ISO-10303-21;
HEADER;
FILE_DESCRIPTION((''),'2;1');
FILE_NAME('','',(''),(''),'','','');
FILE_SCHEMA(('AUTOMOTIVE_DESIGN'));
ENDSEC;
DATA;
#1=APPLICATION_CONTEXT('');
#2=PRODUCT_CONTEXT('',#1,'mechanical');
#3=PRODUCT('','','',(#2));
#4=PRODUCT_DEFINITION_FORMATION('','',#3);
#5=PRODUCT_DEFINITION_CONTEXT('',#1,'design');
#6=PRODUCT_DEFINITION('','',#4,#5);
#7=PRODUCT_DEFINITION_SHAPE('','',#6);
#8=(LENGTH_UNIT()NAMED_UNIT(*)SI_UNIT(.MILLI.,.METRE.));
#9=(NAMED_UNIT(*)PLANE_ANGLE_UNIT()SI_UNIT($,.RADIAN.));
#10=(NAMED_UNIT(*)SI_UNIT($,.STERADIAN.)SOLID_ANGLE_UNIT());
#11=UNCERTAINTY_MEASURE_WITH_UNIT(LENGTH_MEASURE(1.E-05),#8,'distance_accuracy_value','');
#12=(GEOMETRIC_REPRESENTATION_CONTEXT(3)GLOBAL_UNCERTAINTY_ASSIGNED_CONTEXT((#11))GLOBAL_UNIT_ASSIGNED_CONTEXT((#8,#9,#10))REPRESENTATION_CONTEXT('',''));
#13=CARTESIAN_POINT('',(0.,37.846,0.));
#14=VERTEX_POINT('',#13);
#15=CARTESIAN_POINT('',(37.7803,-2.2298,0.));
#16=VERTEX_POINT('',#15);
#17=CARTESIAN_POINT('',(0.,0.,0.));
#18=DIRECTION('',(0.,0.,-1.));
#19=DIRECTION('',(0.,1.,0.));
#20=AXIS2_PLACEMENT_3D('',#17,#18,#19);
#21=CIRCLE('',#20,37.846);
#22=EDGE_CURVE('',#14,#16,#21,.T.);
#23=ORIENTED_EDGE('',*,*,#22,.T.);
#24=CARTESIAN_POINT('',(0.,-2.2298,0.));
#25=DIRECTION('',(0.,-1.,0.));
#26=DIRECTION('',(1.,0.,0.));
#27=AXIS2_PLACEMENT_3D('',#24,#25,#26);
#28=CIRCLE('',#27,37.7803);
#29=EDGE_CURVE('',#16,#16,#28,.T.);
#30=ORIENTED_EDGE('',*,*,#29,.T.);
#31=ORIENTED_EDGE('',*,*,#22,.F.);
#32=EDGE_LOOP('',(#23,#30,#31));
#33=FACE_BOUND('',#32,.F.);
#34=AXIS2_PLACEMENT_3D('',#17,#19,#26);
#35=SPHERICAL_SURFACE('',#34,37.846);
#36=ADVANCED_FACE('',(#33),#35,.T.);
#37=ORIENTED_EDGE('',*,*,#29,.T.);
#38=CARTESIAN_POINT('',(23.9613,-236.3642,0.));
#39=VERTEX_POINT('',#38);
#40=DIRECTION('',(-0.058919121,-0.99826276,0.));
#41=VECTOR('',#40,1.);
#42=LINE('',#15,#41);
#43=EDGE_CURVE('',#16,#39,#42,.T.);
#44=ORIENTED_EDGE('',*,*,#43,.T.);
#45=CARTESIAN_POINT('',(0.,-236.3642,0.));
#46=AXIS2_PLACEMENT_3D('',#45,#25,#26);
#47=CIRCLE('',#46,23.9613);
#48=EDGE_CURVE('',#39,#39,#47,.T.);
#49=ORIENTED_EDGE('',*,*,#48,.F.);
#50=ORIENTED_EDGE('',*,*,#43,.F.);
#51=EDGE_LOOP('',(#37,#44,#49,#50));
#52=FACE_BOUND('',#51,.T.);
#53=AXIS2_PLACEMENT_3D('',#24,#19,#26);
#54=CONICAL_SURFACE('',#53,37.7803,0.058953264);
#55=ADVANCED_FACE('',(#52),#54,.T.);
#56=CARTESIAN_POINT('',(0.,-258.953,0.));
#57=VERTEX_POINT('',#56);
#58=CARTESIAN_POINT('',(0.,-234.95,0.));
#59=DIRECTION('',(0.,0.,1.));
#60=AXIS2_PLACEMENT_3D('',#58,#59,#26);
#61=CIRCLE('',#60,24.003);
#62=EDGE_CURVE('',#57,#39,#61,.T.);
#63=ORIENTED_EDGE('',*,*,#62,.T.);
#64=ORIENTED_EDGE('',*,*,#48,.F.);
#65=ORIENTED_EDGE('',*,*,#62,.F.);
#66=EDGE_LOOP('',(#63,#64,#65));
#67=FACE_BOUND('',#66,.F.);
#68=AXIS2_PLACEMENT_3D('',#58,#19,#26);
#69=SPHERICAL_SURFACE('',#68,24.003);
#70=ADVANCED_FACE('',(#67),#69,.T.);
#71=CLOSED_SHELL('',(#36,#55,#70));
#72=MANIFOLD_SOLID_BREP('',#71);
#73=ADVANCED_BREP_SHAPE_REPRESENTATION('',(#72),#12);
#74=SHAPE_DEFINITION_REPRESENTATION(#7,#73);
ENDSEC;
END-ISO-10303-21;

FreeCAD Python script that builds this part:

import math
import FreeCAD as App
import Part
import Sketcher
Q = App.Units.Quantity

doc = App.newDocument("Part")
body = doc.addObject("PartDesign::Body", "Body")

# Sketch on XY plane
sketch1 = body.newObject("Sketcher::SketchObject", "Sketch")
sketch1.AttachmentSupport = (doc.getObject("XY_Plane"), [""])
sketch1.MapMode = "FlatFace"
sketch1.addGeometry(Part.ArcOfCircle(Part.Circle(App.Vector(0, 0, 0), App.Vector(0, 0, 1), 37.846), math.radians(-3.377689), math.radians(90)), False)
sketch1.addGeometry(Part.LineSegment(App.Vector(0, 37.846, 0), App.Vector(0, -258.953, 0)), False)
sketch1.addGeometry(Part.ArcOfCircle(Part.Circle(App.Vector(0, -234.95, 0), App.Vector(0, 0, 1), 24.003), math.radians(-90), math.radians(-3.377688)), False)
sketch1.addGeometry(Part.LineSegment(App.Vector(23.9613, -236.3642, 0), App.Vector(37.7803, -2.2298, 0)), False)
sketch1.addConstraint(Sketcher.Constraint("Coincident", 0, 2, 1, 1))
sketch1.addConstraint(Sketcher.Constraint("Coincident", 1, 2, 2, 1))
sketch1.addConstraint(Sketcher.Constraint("Tangent", 2, 2, 3, 1))
sketch1.addConstraint(Sketcher.Constraint("Tangent", 3, 2, 0, 1))
sketch1.addConstraint(Sketcher.Constraint("Vertical", 1))
sketch1.addConstraint(Sketcher.Constraint("Coincident", 0, 3, -1, 1))
sketch1.addConstraint(Sketcher.Constraint("PointOnObject", 2, 3, -2))
sketch1.addConstraint(Sketcher.Constraint("PointOnObject", 0, 2, -2))
sketch1.addConstraint(Sketcher.Constraint("Radius", 0, Q("1.49 in")))
sketch1.addConstraint(Sketcher.Constraint("Radius", 2, Q("0.945 in")))
sketch1.addConstraint(Sketcher.Constraint("DistanceY", 2, 3, -1, 1, Q("9.25 in")))
revolution = body.newObject("PartDesign::Revolution", "Revolution")
revolution.Profile = sketch1
revolution.ReferenceAxis = (sketch1, ["V_Axis"])
revolution.Angle = 360

doc.recompute()
